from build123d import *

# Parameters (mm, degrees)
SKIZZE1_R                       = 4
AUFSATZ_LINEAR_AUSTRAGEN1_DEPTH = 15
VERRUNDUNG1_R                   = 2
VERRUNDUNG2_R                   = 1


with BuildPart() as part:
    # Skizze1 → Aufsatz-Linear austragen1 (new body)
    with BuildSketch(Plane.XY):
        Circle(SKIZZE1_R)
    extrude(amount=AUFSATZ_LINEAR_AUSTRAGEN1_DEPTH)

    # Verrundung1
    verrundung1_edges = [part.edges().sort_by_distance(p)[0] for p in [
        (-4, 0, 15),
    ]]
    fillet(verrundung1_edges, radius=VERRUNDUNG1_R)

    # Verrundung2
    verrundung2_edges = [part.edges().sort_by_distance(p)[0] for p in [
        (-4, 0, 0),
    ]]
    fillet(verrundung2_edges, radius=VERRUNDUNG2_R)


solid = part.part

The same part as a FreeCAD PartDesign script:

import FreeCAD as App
import Part
import Sketcher
from FreeCAD import Vector


def edges_at(feature, points):
    """Names of the edges that pass closest to the given points."""
    edges = feature.Shape.Edges
    near = lambda p: min(range(len(edges)), key=lambda i: edges[i].distToShape(Part.Vertex(*p))[0])
    return sorted({f"Edge{near(p) + 1}" for p in points})

doc = App.newDocument("Part")
body = doc.addObject("PartDesign::Body", "Body")

sketch1 = body.newObject("Sketcher::SketchObject", "Sketch")
sketch1.AttachmentSupport = (doc.getObject("XY_Plane"), [""])
sketch1.MapMode = "FlatFace"
sketch1.addGeometry(Part.Circle(Vector(0, 0, 0), Vector(0, 0, 1), 4), False)
sketch1.addConstraint(Sketcher.Constraint("Coincident", 0, 3, -1, 1))
sketch1.addConstraint(Sketcher.Constraint("Diameter", 0, 8.0))
pad1 = body.newObject("PartDesign::Pad", "Pad")
pad1.Profile = sketch1
pad1.Length = 15
doc.recompute()

fillet = body.newObject("PartDesign::Fillet", "Fillet")
fillet.Base = (pad1, edges_at(pad1, [(-4, 0, 15)]))
fillet.Radius = 2
doc.recompute()

fillet2 = body.newObject("PartDesign::Fillet", "Fillet001")
fillet2.Base = (fillet, edges_at(fillet, [(-4, 0, 0)]))
fillet2.Radius = 1

doc.recompute()
